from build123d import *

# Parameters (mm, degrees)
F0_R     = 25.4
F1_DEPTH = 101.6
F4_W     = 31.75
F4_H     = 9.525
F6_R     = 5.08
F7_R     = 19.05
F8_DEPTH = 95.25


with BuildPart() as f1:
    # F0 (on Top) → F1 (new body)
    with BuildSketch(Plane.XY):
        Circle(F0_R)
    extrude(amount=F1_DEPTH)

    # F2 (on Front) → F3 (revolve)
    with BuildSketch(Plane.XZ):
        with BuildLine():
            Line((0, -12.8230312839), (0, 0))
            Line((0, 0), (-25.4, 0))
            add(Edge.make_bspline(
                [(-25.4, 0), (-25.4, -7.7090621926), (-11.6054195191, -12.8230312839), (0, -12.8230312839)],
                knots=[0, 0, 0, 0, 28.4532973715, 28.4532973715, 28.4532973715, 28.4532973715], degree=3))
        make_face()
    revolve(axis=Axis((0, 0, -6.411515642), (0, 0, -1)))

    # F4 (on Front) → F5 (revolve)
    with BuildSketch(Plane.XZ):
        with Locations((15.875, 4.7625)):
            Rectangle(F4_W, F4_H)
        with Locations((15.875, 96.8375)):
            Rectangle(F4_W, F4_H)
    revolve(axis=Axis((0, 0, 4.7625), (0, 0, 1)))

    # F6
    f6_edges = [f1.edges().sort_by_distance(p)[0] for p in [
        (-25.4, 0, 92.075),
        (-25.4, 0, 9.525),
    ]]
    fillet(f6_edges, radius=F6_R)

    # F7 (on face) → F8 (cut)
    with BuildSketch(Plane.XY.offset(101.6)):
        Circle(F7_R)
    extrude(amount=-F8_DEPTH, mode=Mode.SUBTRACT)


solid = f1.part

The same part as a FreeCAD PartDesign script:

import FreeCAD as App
import Part
import Sketcher

V = App.Vector
Q = App.Units.Quantity


def edges_at(feature, points):
    """Names of the edges that pass closest to the given points."""
    edges = feature.Shape.Edges
    near = lambda p: min(range(len(edges)), key=lambda i: edges[i].distToShape(Part.Vertex(*p))[0])
    return sorted({f"Edge{near(p) + 1}" for p in points})

doc = App.newDocument("Part")
body = doc.addObject("PartDesign::Body", "Body")

# Sketch on XY plane
sketch1 = body.newObject("Sketcher::SketchObject", "Sketch")
sketch1.AttachmentSupport = (doc.getObject("XY_Plane"), [""])
sketch1.MapMode = "FlatFace"
sketch1.addGeometry(Part.Circle(V(0, 0, 0), V(0, 0, 1), 25), False)
sketch1.addConstraint(Sketcher.Constraint("Coincident", 0, 3, -1, 1))
sketch1.addConstraint(Sketcher.Constraint("Diameter", 0, Q("2 in")))
pad1 = body.newObject("PartDesign::Pad", "Pad")
pad1.Profile = sketch1
pad1.Length = Q("4 in")

# Sketch on XZ plane
sketch2 = body.newObject("Sketcher::SketchObject", "Sketch001")
sketch2.AttachmentSupport = (doc.getObject("XZ_Plane"), [""])
sketch2.MapMode = "FlatFace"
sketch2.addGeometry(Part.LineSegment(V(0, -12.823031, 0), V(0, 0, 0)), False)
sketch2.addGeometry(Part.LineSegment(V(0, 0, 0), V(-25.4, 0, 0)), False)
sketch2.addGeometry(Part.BSplineCurve([V(-25.4, 0, 0), V(-25.4, -7.709062, 0), V(-11.60542, -12.823031, 0), V(0, -12.823031, 0)], [4, 4], [0, 28.453297371], False, 3, [1, 1, 1, 1], False), False)
sketch2.addConstraint(Sketcher.Constraint("Block", 2))
sketch2.addConstraint(Sketcher.Constraint("Coincident", 0, 2, 1, 1))
sketch2.addConstraint(Sketcher.Constraint("Coincident", 1, 2, 2, 1))
sketch2.addConstraint(Sketcher.Constraint("Coincident", 2, 2, 0, 1))
sketch2.addConstraint(Sketcher.Constraint("Vertical", 0))
sketch2.addConstraint(Sketcher.Constraint("Horizontal", 1))
revolution = body.newObject("PartDesign::Revolution", "Revolution")
revolution.Profile = sketch2
revolution.ReferenceAxis = (sketch2, ["V_Axis"])
revolution.Angle = 360

# Sketch on XZ plane
sketch3 = body.newObject("Sketcher::SketchObject", "Sketch002")
sketch3.AttachmentSupport = (doc.getObject("XZ_Plane"), [""])
sketch3.MapMode = "FlatFace"
sketch3.addGeometry(Part.LineSegment(V(0, 10, 0), V(0, 0, 0)), False)
sketch3.addGeometry(Part.LineSegment(V(0, 0, 0), V(32, 0, 0)), False)
sketch3.addGeometry(Part.LineSegment(V(32, 0, 0), V(32, 10, 0)), False)
sketch3.addGeometry(Part.LineSegment(V(32, 10, 0), V(0, 10, 0)), False)
sketch3.addGeometry(Part.LineSegment(V(0, 102, 0), V(0, 92, 0)), False)
sketch3.addGeometry(Part.LineSegment(V(0, 92, 0), V(32, 92, 0)), False)
sketch3.addGeometry(Part.LineSegment(V(32, 92, 0), V(32, 102, 0)), False)
sketch3.addGeometry(Part.LineSegment(V(32, 102, 0), V(0, 102, 0)), False)
sketch3.addConstraint(Sketcher.Constraint("Coincident", 0, 2, 1, 1))
sketch3.addConstraint(Sketcher.Constraint("Coincident", 1, 2, 2, 1))
sketch3.addConstraint(Sketcher.Constraint("Coincident", 2, 2, 3, 1))
sketch3.addConstraint(Sketcher.Constraint("Coincident", 3, 2, 0, 1))
sketch3.addConstraint(Sketcher.Constraint("Coincident", 4, 2, 5, 1))
sketch3.addConstraint(Sketcher.Constraint("Coincident", 5, 2, 6, 1))
sketch3.addConstraint(Sketcher.Constraint("Coincident", 6, 2, 7, 1))
sketch3.addConstraint(Sketcher.Constraint("Coincident", 7, 2, 4, 1))
sketch3.addConstraint(Sketcher.Constraint("Vertical", 0))
sketch3.addConstraint(Sketcher.Constraint("Horizontal", 1))
sketch3.addConstraint(Sketcher.Constraint("Vertical", 2))
sketch3.addConstraint(Sketcher.Constraint("Horizontal", 3))
sketch3.addConstraint(Sketcher.Constraint("Vertical", 4))
sketch3.addConstraint(Sketcher.Constraint("Horizontal", 5))
sketch3.addConstraint(Sketcher.Constraint("Vertical", 6))
sketch3.addConstraint(Sketcher.Constraint("Horizontal", 7))
sketch3.addConstraint(Sketcher.Constraint("Coincident", 0, 2, -1, 1))
sketch3.addConstraint(Sketcher.Constraint("PointOnObject", 4, 2, -2))
sketch3.addConstraint(Sketcher.Constraint("Vertical", 2, 2, 5, 2))
sketch3.addConstraint(Sketcher.Constraint("Equal", 2, 4))
sketch3.addConstraint(Sketcher.Constraint("DistanceY", -1, 1, 6, 2, Q("4 in")))
sketch3.addConstraint(Sketcher.Constraint("DistanceX", 1, 1, 1, 2, Q("1.25 in")))
sketch3.addConstraint(Sketcher.Constraint("DistanceY", 0, 2, 0, 1, Q("0.375 in")))
revolution2 = body.newObject("PartDesign::Revolution", "Revolution001")
revolution2.Profile = sketch3
revolution2.ReferenceAxis = (sketch3, ["V_Axis"])
revolution2.Angle = 360
doc.recompute()

fillet = body.newObject("PartDesign::Fillet", "Fillet")
fillet.Base = (revolution2, edges_at(revolution2, [(-25.4, 0, 92.075), (-25.4, 0, 9.525)]))
fillet.Radius = Q("0.2 in")

# Sketch on XY plane
sketch4 = body.newObject("Sketcher::SketchObject", "Sketch003")
sketch4.AttachmentSupport = (doc.getObject("XY_Plane"), [""])
sketch4.MapMode = "FlatFace"
sketch4.AttachmentOffset = App.Placement(V(0, 0, 4 * 25.4), App.Rotation())
sketch4.addGeometry(Part.Circle(V(0, 0, 0), V(0, 0, 1), 19), False)
sketch4.addConstraint(Sketcher.Constraint("Coincident", 0, 3, -1, 1))
sketch4.addConstraint(Sketcher.Constraint("Diameter", 0, Q("1.5 in")))
pocket1 = body.newObject("PartDesign::Pocket", "Pocket")
pocket1.Profile = sketch4
pocket1.Length = Q("3.75 in")

doc.recompute()
